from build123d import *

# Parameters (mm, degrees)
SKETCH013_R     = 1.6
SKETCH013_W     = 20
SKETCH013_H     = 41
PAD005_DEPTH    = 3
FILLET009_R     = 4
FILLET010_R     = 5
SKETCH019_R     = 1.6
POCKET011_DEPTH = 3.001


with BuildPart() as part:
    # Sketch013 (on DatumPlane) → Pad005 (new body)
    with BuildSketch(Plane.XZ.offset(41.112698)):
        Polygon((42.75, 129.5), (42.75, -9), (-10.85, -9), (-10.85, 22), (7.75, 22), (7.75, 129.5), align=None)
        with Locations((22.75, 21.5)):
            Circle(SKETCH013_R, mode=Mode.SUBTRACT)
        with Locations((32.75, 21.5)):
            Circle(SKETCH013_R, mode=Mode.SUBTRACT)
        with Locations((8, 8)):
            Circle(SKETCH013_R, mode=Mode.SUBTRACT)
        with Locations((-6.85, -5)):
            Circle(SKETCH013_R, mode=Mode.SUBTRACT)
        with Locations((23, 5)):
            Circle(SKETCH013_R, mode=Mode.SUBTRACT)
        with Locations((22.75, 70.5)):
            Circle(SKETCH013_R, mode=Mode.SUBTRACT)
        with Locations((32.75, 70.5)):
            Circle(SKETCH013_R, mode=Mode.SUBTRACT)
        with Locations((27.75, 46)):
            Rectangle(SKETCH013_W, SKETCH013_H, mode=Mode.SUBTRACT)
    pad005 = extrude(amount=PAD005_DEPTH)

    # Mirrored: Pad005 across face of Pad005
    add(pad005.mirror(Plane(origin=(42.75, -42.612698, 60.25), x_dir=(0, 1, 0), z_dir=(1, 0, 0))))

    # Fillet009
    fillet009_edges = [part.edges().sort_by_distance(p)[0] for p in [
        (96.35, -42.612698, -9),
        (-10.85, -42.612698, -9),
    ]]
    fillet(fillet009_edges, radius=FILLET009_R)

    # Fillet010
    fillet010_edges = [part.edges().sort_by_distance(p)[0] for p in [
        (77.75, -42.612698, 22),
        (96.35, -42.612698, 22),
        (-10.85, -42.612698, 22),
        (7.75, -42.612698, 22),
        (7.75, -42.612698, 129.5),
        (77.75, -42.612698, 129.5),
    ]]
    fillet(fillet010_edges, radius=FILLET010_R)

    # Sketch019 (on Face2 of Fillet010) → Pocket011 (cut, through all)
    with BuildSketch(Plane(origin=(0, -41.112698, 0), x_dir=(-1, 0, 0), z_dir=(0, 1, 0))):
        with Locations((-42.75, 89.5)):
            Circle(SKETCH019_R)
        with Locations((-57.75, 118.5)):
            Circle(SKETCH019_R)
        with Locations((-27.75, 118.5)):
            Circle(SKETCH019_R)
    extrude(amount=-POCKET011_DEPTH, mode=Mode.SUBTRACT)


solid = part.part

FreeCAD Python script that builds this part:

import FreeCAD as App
import Part
import Sketcher


def edges_at(feature, points):
    """Names of the edges that pass closest to the given points."""
    edges = feature.Shape.Edges
    near = lambda p: min(range(len(edges)), key=lambda i: edges[i].distToShape(Part.Vertex(*p))[0])
    return sorted({f"Edge{near(p) + 1}" for p in points})

doc = App.newDocument("Part")
params = doc.addObject("Spreadsheet::Sheet", "Params")
for row, (alias, value) in enumerate([
    ("sketch1_diameter", "3.2 mm"),
    ("sketch1_width", "35 mm"),
    ("sketch1_width2", "20 mm"),
    ("sketch1_height", "31 mm"),
    ("sketch1_height2", "41 mm"),
    ("pad1_length", "3 mm"),
    ("fillet_radius", "4 mm"),
    ("fillet2_radius", "5 mm"),
    ("sketch2_diameter", "3.2 mm"),
], start=1):
    params.set(f"A{row}", alias)
    params.set(f"B{row}", "=" + value)
    params.setAlias(f"B{row}", alias)

body = doc.addObject("PartDesign::Body", "Body")

# Sketch on XZ plane
sketch1 = body.newObject("Sketcher::SketchObject", "Sketch")
sketch1.AttachmentSupport = (doc.getObject("XZ_Plane"), [""])
sketch1.MapMode = "FlatFace"
sketch1.AttachmentOffset = App.Placement(App.Vector(0, 0, 41.112698), App.Rotation())
sketch1.addGeometry([
    Part.LineSegment(App.Vector(42.8, -9, 0), App.Vector(42.8, 129.5, 0)),  # 0
    Part.LineSegment(App.Vector(42.8, 129.5, 0), App.Vector(7.8, 129.5, 0)),  # 1
    Part.LineSegment(App.Vector(7.8, 129.5, 0), App.Vector(7.8, 22, 0)),  # 2
    Part.LineSegment(App.Vector(7.8, 22, 0), App.Vector(-10.8, 22, 0)),  # 3
    Part.LineSegment(App.Vector(-10.8, 22, 0), App.Vector(-10.8, -9, 0)),  # 4
    Part.LineSegment(App.Vector(-10.8, -9, 0), App.Vector(42.8, -9, 0)),  # 5
    Part.Circle(App.Vector(23, 5, 0), App.Vector(0, 0, 1), 1.6),  # 6
    Part.Circle(App.Vector(32.8, 21.5, 0), App.Vector(0, 0, 1), 1.6),  # 7
    Part.Circle(App.Vector(22.8, 21.5, 0), App.Vector(0, 0, 1), 1.6),  # 8
    Part.Circle(App.Vector(8, 8, 0), App.Vector(0, 0, 1), 1.6),  # 9
    Part.Circle(App.Vector(-6.8, -5, 0), App.Vector(0, 0, 1), 1.6),  # 10
    Part.LineSegment(App.Vector(17.8, 25.5, 0), App.Vector(17.8, 66.5, 0)),  # 11
    Part.LineSegment(App.Vector(17.8, 66.5, 0), App.Vector(37.8, 66.5, 0)),  # 12
    Part.LineSegment(App.Vector(37.8, 66.5, 0), App.Vector(37.8, 25.5, 0)),  # 13
    Part.LineSegment(App.Vector(37.8, 25.5, 0), App.Vector(17.8, 25.5, 0)),  # 14
    Part.Circle(App.Vector(32.8, 70.5, 0), App.Vector(0, 0, 1), 1.6),  # 15
    Part.Circle(App.Vector(22.8, 70.5, 0), App.Vector(0, 0, 1), 1.6),  # 16
], False)
sketch1.addConstraint([
    Sketcher.Constraint("Coincident", 0, 2, 1, 1),
    Sketcher.Constraint("Coincident", 1, 2, 2, 1),
    Sketcher.Constraint("Coincident", 2, 2, 3, 1),
    Sketcher.Constraint("Coincident", 3, 2, 4, 1),
    Sketcher.Constraint("Coincident", 4, 2, 5, 1),
    Sketcher.Constraint("Coincident", 5, 2, 0, 1),
    Sketcher.Constraint("Coincident", 11, 2, 12, 1),
    Sketcher.Constraint("Coincident", 12, 2, 13, 1),
    Sketcher.Constraint("Coincident", 13, 2, 14, 1),
    Sketcher.Constraint("Coincident", 14, 2, 11, 1),
    Sketcher.Constraint("Vertical", 0),
    Sketcher.Constraint("Horizontal", 1),
    Sketcher.Constraint("Vertical", 2),
    Sketcher.Constraint("Horizontal", 3),
    Sketcher.Constraint("Vertical", 4),
    Sketcher.Constraint("Horizontal", 5),
    Sketcher.Constraint("Vertical", 11),
    Sketcher.Constraint("Horizontal", 12),
    Sketcher.Constraint("Vertical", 13),
    Sketcher.Constraint("Horizontal", 14),
    Sketcher.Constraint("Equal", 6, 7),
    Sketcher.Constraint("Equal", 7, 8),
    Sketcher.Constraint("Equal", 8, 9),
    Sketcher.Constraint("Equal", 9, 10),
    Sketcher.Constraint("Equal", 10, 15),
    Sketcher.Constraint("Equal", 15, 16),
    Sketcher.Constraint("Horizontal", 7, 3, 8, 3),
    Sketcher.Constraint("Horizontal", 15, 3, 16, 3),
    Sketcher.Constraint("Vertical", 7, 3, 15, 3),
    Sketcher.Constraint("Vertical", 8, 3, 16, 3),
    Sketcher.Constraint("Diameter", 6, 3.2),
    Sketcher.Constraint("DistanceX", 1, 2, 1, 1, 35.0),
    Sketcher.Constraint("DistanceX", 12, 1, 12, 2, 20.0),
    Sketcher.Constraint("DistanceY", 4, 2, 4, 1, 31.0),
    Sketcher.Constraint("DistanceY", 11, 1, 11, 2, 41.0),
    Sketcher.Constraint("DistanceX", 3, 2, 3, 1, 18.6),
    Sketcher.Constraint("DistanceY", 0, 1, 0, 2, 138.5),
    Sketcher.Constraint("DistanceX", -1, 1, 6, 3, 23.0),
    Sketcher.Constraint("DistanceY", -1, 1, 6, 3, 5.0),
    Sketcher.Constraint("DistanceX", -1, 1, 9, 3, 8.0),
    Sketcher.Constraint("DistanceY", -1, 1, 9, 3, 8.0),
    Sketcher.Constraint("DistanceY", 10, 3, -1, 1, 5.0),
    Sketcher.Constraint("DistanceY", -1, 1, 2, 2, 22.0),
    Sketcher.Constraint("DistanceX", 8, 3, 7, 3, 10.0),
    Sketcher.Constraint("DistanceY", 7, 3, 15, 3, 49.0),
    Sketcher.Constraint("DistanceX", 15, 3, 0, 2, 10.0),
    Sketcher.Constraint("DistanceY", 15, 3, 0, 2, 59.0),
    Sketcher.Constraint("DistanceX", 3, 2, 10, 3, 4.0),
    Sketcher.Constraint("DistanceX", 11, 2, 16, 3, 5.0),
    Sketcher.Constraint("DistanceY", 11, 2, 16, 3, 4.0),
    Sketcher.Constraint("DistanceX", -1, 1, 7, 3, 32.75),
])
sketch1.setExpression("Constraints[30]", "Params.sketch1_diameter")
sketch1.setExpression("Constraints[31]", "Params.sketch1_width")
sketch1.setExpression("Constraints[32]", "Params.sketch1_width2")
sketch1.setExpression("Constraints[33]", "Params.sketch1_height")
sketch1.setExpression("Constraints[34]", "Params.sketch1_height2")
pad1 = body.newObject("PartDesign::Pad", "Pad")
pad1.Profile = sketch1
pad1.setExpression("Length", "Params.pad1_length")
doc.recompute()

datumplane = body.newObject("PartDesign::Plane", "DatumPlane")
datumplane.AttachmentSupport = (doc.getObject("YZ_Plane"), [""])
datumplane.MapMode = "FlatFace"
datumplane.AttachmentOffset = App.Placement(App.Vector(0, 0, 42.75), App.Rotation())
mirrored = body.newObject("PartDesign::Mirrored", "Mirrored")
mirrored.Originals = [pad1]
mirrored.MirrorPlane = (datumplane, [""])
body.Tip = mirrored
doc.recompute()

fillet = body.newObject("PartDesign::Fillet", "Fillet")
fillet.Base = (mirrored, edges_at(mirrored, [(96.35, -42.613, -9), (-10.85, -42.613, -9)]))
fillet.setExpression("Radius", "Params.fillet_radius")
doc.recompute()

fillet2 = body.newObject("PartDesign::Fillet", "Fillet001")
fillet2.Base = (fillet, edges_at(fillet, [
    (77.75, -42.613, 22),
    (96.35, -42.613, 22),
    (-10.85, -42.613, 22),
    (7.75, -42.613, 22),
    (7.75, -42.613, 129.5),
    (77.75, -42.613, 129.5),
]))
fillet2.setExpression("Radius", "Params.fillet2_radius")

# Sketch on XZ plane
sketch2 = body.newObject("Sketcher::SketchObject", "Sketch001")
sketch2.AttachmentSupport = (doc.getObject("XZ_Plane"), [""])
sketch2.MapMode = "FlatFace"
sketch2.AttachmentOffset = App.Placement(App.Vector(0, 0, 41.112698), App.Rotation())
sketch2.addGeometry([
    Part.Circle(App.Vector(42.8, 89.5, 0), App.Vector(0, 0, 1), 1.6),
    Part.Circle(App.Vector(57.8, 118.5, 0), App.Vector(0, 0, 1), 1.6),
    Part.Circle(App.Vector(27.8, 118.5, 0), App.Vector(0, 0, 1), 1.6),
], False)
sketch2.addConstraint([
    Sketcher.Constraint("Equal", 0, 1),
    Sketcher.Constraint("Equal", 1, 2),
    Sketcher.Constraint("Horizontal", 1, 3, 2, 3),
    Sketcher.Constraint("Diameter", 0, 3.2),
    Sketcher.Constraint("DistanceX", 0, 3, 1, 3, 15.0),
    Sketcher.Constraint("DistanceY", 0, 3, 1, 3, 29.0),
    Sketcher.Constraint("DistanceX", 2, 3, 1, 3, 30.0),
    Sketcher.Constraint("DistanceY", -1, 1, 0, 3, 89.5),
    Sketcher.Constraint("DistanceX", -1, 1, 0, 3, 42.75),
])
sketch2.setExpression("Constraints[3]", "Params.sketch2_diameter")
pocket1 = body.newObject("PartDesign::Pocket", "Pocket")
pocket1.Profile = sketch2
pocket1.Type = "ThroughAll"
pocket1.Reversed = True

doc.recompute()
